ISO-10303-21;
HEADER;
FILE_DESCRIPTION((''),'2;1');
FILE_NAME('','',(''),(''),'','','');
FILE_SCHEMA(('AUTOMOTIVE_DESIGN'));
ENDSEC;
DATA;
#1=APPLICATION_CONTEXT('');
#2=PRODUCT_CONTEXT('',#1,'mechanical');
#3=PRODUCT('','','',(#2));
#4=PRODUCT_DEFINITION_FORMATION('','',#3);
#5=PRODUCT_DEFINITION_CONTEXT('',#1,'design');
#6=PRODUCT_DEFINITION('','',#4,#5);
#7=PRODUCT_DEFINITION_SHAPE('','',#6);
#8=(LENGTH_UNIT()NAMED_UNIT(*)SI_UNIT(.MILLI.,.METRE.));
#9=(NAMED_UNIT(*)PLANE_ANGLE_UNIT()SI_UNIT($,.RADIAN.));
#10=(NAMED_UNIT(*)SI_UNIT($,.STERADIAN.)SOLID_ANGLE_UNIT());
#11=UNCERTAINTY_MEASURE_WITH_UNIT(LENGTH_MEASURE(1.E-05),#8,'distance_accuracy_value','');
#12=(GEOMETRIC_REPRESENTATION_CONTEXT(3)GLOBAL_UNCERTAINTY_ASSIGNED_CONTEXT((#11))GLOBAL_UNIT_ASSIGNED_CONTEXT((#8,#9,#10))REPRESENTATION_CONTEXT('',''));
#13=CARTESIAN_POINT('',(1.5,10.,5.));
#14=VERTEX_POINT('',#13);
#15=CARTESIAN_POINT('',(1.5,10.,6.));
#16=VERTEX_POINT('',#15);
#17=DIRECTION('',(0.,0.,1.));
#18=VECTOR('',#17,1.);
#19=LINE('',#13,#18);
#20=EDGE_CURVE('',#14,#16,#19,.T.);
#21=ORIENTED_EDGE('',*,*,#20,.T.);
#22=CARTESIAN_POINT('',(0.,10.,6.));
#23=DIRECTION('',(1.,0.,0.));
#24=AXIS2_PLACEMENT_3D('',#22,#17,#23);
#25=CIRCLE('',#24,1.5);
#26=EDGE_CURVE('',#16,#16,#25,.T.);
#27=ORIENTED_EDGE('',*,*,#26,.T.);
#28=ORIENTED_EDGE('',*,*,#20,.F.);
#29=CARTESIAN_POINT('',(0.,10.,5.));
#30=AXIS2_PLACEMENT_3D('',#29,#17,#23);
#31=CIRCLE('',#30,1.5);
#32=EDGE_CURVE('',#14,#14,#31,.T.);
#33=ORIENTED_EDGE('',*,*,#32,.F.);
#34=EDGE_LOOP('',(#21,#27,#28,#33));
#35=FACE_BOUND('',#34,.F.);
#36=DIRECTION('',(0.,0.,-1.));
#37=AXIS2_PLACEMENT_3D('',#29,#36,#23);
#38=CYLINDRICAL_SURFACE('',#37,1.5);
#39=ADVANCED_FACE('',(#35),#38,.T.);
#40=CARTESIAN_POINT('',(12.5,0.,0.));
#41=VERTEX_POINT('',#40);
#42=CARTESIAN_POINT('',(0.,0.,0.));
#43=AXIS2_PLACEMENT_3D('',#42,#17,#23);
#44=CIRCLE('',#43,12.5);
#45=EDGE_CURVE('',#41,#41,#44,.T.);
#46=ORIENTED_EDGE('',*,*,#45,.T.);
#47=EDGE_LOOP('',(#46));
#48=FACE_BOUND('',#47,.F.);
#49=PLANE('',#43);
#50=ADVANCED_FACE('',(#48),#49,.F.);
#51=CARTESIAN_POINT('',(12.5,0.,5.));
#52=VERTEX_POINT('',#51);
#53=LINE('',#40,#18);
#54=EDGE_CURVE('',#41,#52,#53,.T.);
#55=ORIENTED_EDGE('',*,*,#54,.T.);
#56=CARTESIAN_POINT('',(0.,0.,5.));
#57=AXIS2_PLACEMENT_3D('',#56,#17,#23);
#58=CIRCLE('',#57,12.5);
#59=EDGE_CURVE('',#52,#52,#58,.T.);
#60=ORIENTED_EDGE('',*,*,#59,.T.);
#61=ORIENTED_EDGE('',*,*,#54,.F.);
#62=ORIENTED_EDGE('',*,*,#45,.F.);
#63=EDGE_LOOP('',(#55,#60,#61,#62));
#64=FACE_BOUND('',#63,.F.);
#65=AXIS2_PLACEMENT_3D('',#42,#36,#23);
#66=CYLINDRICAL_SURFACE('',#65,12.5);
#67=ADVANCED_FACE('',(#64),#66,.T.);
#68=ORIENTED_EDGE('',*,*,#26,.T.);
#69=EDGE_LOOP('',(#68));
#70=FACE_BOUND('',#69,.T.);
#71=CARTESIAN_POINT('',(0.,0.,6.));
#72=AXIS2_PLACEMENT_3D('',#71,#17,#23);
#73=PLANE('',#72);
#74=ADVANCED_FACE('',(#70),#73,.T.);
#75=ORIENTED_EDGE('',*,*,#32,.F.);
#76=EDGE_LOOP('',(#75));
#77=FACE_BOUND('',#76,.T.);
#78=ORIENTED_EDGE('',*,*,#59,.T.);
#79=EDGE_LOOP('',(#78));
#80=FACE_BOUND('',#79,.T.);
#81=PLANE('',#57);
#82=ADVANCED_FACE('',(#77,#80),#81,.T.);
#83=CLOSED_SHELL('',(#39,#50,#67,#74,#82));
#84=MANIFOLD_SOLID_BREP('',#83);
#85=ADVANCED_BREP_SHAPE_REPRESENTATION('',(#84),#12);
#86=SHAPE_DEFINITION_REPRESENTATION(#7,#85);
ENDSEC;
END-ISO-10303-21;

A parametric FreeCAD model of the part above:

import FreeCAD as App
import Part
import Sketcher
from FreeCAD import Vector
Q = App.Units.Quantity

doc = App.newDocument("Part")
body = doc.addObject("PartDesign::Body", "Body")

# Sketch on XY plane
sketch1 = body.newObject("Sketcher::SketchObject", "Sketch")
sketch1.AttachmentSupport = (doc.getObject("XY_Plane"), [""])
sketch1.MapMode = "FlatFace"
sketch1.addGeometry(Part.Circle(Vector(0, 0, 0), Vector(0, 0, 1), 12), False)
sketch1.addConstraint([
    Sketcher.Constraint("Coincident", 0, 3, -1, 1),
    Sketcher.Constraint("Diameter", 0, Q("25 mm")),
])
pad1 = body.newObject("PartDesign::Pad", "Pad")
pad1.Profile = sketch1
pad1.Length = 5

# Sketch on XY plane
sketch2 = body.newObject("Sketcher::SketchObject", "Sketch001")
sketch2.AttachmentSupport = (doc.getObject("XY_Plane"), [""])
sketch2.MapMode = "FlatFace"
sketch2.AttachmentOffset = App.Placement(Vector(0, 0, 5), App.Rotation())
sketch2.addGeometry(Part.Circle(Vector(0, 10, 0), Vector(0, 0, 1), 1.5), False)
sketch2.addConstraint([
    Sketcher.Constraint("PointOnObject", 0, 3, -2),
    Sketcher.Constraint("Diameter", 0, Q("3 mm")),
    Sketcher.Constraint("DistanceY", -1, 1, 0, 3, Q("10 mm")),
])
pad2 = body.newObject("PartDesign::Pad", "Pad001")
pad2.Profile = sketch2
pad2.Length = 1

doc.recompute()
